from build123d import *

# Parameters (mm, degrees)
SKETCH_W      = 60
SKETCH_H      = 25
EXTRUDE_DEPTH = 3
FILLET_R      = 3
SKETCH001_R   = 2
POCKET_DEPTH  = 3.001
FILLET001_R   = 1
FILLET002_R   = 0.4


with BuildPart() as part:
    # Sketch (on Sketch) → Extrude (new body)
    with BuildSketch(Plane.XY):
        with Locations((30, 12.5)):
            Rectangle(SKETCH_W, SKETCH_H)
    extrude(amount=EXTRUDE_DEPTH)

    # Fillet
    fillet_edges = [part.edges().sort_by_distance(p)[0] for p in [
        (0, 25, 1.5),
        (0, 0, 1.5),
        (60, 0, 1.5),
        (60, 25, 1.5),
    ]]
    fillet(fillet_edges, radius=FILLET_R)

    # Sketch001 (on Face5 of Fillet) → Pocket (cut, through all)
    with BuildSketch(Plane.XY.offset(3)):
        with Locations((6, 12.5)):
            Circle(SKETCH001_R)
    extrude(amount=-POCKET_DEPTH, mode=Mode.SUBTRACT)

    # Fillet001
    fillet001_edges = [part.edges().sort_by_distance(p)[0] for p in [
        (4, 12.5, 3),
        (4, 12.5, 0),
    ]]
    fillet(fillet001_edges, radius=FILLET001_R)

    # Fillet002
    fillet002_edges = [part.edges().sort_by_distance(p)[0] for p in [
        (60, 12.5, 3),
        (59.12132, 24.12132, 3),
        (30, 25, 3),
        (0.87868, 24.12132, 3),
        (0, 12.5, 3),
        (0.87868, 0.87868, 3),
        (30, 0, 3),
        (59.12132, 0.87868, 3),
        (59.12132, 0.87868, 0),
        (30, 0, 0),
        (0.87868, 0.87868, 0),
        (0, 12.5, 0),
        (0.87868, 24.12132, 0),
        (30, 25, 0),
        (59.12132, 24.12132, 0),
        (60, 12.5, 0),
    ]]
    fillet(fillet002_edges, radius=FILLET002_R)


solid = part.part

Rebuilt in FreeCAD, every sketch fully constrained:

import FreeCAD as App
import Part
import Sketcher

V = App.Vector


def edges_at(feature, points):
    """Names of the edges that pass closest to the given points."""
    edges = feature.Shape.Edges
    near = lambda p: min(range(len(edges)), key=lambda i: edges[i].distToShape(Part.Vertex(*p))[0])
    return sorted({f"Edge{near(p) + 1}" for p in points})


def add_polygon(sketch, points):
    """Adds a closed chain of lines whose ends are joined by coincident constraints."""
    first, n = sketch.GeometryCount, len(points)
    for a, b in zip(points, points[1:] + points[:1]):
        sketch.addGeometry(Part.LineSegment(App.Vector(*a, 0), App.Vector(*b, 0)), False)
    for i in range(n):
        sketch.addConstraint(Sketcher.Constraint("Coincident", first + i, 2, first + (i + 1) % n, 1))

doc = App.newDocument("Part")
body = doc.addObject("PartDesign::Body", "Body")

# Sketch on XY plane
sketch1 = body.newObject("Sketcher::SketchObject", "Sketch")
sketch1.AttachmentSupport = (doc.getObject("XY_Plane"), [""])
sketch1.MapMode = "FlatFace"
add_polygon(sketch1, [(0, 25), (0, 0), (60, 0), (60, 25)])  # lines 0-3
sketch1.addConstraint([
    Sketcher.Constraint("Vertical", 0),
    Sketcher.Constraint("Horizontal", 1),
    Sketcher.Constraint("Vertical", 2),
    Sketcher.Constraint("Horizontal", 3),
    Sketcher.Constraint("Coincident", 0, 2, -1, 1),
    Sketcher.Constraint("DistanceX", 1, 1, 1, 2, 60.0),
    Sketcher.Constraint("DistanceY", 0, 2, 0, 1, 25.0),
])
pad1 = body.newObject("PartDesign::Pad", "Pad")
pad1.Profile = sketch1
pad1.Length = 3
doc.recompute()

fillet = body.newObject("PartDesign::Fillet", "Fillet")
fillet.Base = (pad1, edges_at(pad1, [
    (0, 25, 1.5),
    (0, 0, 1.5),
    (60, 0, 1.5),
    (60, 25, 1.5),
]))
fillet.Radius = 3

# Sketch on XY plane
sketch2 = body.newObject("Sketcher::SketchObject", "Sketch001")
sketch2.AttachmentSupport = (doc.getObject("XY_Plane"), [""])
sketch2.MapMode = "FlatFace"
sketch2.AttachmentOffset = App.Placement(V(0, 0, 3), App.Rotation())
sketch2.addGeometry(Part.Circle(V(6, 12.5, 0), V(0, 0, 1), 2), False)
sketch2.addConstraint([
    Sketcher.Constraint("Diameter", 0, 4.0),
    Sketcher.Constraint("DistanceX", -1, 1, 0, 3, 6.0),
    Sketcher.Constraint("DistanceY", -1, 1, 0, 3, 12.5),
])
pocket1 = body.newObject("PartDesign::Pocket", "Pocket")
pocket1.Profile = sketch2
pocket1.Type = "ThroughAll"
doc.recompute()

fillet2 = body.newObject("PartDesign::Fillet", "Fillet001")
fillet2.Base = (pocket1, edges_at(pocket1, [(4, 12.5, 3), (4, 12.5, 0)]))
fillet2.Radius = 1
doc.recompute()

fillet3 = body.newObject("PartDesign::Fillet", "Fillet002")
fillet3.Base = (fillet2, edges_at(fillet2, [
    (60, 12.5, 3),
    (59.121, 24.121, 3),
    (30, 25, 3),
    (0.879, 24.121, 3),
    (0, 12.5, 3),
    (0.879, 0.879, 3),
    (30, 0, 3),
    (59.121, 0.879, 3),
    (59.121, 0.879, 0),
    (30, 0, 0),
    (0.879, 0.879, 0),
    (0, 12.5, 0),
    (0.879, 24.121, 0),
    (30, 25, 0),
    (59.121, 24.121, 0),
    (60, 12.5, 0),
]))
fillet3.Radius = 0.4

doc.recompute()
